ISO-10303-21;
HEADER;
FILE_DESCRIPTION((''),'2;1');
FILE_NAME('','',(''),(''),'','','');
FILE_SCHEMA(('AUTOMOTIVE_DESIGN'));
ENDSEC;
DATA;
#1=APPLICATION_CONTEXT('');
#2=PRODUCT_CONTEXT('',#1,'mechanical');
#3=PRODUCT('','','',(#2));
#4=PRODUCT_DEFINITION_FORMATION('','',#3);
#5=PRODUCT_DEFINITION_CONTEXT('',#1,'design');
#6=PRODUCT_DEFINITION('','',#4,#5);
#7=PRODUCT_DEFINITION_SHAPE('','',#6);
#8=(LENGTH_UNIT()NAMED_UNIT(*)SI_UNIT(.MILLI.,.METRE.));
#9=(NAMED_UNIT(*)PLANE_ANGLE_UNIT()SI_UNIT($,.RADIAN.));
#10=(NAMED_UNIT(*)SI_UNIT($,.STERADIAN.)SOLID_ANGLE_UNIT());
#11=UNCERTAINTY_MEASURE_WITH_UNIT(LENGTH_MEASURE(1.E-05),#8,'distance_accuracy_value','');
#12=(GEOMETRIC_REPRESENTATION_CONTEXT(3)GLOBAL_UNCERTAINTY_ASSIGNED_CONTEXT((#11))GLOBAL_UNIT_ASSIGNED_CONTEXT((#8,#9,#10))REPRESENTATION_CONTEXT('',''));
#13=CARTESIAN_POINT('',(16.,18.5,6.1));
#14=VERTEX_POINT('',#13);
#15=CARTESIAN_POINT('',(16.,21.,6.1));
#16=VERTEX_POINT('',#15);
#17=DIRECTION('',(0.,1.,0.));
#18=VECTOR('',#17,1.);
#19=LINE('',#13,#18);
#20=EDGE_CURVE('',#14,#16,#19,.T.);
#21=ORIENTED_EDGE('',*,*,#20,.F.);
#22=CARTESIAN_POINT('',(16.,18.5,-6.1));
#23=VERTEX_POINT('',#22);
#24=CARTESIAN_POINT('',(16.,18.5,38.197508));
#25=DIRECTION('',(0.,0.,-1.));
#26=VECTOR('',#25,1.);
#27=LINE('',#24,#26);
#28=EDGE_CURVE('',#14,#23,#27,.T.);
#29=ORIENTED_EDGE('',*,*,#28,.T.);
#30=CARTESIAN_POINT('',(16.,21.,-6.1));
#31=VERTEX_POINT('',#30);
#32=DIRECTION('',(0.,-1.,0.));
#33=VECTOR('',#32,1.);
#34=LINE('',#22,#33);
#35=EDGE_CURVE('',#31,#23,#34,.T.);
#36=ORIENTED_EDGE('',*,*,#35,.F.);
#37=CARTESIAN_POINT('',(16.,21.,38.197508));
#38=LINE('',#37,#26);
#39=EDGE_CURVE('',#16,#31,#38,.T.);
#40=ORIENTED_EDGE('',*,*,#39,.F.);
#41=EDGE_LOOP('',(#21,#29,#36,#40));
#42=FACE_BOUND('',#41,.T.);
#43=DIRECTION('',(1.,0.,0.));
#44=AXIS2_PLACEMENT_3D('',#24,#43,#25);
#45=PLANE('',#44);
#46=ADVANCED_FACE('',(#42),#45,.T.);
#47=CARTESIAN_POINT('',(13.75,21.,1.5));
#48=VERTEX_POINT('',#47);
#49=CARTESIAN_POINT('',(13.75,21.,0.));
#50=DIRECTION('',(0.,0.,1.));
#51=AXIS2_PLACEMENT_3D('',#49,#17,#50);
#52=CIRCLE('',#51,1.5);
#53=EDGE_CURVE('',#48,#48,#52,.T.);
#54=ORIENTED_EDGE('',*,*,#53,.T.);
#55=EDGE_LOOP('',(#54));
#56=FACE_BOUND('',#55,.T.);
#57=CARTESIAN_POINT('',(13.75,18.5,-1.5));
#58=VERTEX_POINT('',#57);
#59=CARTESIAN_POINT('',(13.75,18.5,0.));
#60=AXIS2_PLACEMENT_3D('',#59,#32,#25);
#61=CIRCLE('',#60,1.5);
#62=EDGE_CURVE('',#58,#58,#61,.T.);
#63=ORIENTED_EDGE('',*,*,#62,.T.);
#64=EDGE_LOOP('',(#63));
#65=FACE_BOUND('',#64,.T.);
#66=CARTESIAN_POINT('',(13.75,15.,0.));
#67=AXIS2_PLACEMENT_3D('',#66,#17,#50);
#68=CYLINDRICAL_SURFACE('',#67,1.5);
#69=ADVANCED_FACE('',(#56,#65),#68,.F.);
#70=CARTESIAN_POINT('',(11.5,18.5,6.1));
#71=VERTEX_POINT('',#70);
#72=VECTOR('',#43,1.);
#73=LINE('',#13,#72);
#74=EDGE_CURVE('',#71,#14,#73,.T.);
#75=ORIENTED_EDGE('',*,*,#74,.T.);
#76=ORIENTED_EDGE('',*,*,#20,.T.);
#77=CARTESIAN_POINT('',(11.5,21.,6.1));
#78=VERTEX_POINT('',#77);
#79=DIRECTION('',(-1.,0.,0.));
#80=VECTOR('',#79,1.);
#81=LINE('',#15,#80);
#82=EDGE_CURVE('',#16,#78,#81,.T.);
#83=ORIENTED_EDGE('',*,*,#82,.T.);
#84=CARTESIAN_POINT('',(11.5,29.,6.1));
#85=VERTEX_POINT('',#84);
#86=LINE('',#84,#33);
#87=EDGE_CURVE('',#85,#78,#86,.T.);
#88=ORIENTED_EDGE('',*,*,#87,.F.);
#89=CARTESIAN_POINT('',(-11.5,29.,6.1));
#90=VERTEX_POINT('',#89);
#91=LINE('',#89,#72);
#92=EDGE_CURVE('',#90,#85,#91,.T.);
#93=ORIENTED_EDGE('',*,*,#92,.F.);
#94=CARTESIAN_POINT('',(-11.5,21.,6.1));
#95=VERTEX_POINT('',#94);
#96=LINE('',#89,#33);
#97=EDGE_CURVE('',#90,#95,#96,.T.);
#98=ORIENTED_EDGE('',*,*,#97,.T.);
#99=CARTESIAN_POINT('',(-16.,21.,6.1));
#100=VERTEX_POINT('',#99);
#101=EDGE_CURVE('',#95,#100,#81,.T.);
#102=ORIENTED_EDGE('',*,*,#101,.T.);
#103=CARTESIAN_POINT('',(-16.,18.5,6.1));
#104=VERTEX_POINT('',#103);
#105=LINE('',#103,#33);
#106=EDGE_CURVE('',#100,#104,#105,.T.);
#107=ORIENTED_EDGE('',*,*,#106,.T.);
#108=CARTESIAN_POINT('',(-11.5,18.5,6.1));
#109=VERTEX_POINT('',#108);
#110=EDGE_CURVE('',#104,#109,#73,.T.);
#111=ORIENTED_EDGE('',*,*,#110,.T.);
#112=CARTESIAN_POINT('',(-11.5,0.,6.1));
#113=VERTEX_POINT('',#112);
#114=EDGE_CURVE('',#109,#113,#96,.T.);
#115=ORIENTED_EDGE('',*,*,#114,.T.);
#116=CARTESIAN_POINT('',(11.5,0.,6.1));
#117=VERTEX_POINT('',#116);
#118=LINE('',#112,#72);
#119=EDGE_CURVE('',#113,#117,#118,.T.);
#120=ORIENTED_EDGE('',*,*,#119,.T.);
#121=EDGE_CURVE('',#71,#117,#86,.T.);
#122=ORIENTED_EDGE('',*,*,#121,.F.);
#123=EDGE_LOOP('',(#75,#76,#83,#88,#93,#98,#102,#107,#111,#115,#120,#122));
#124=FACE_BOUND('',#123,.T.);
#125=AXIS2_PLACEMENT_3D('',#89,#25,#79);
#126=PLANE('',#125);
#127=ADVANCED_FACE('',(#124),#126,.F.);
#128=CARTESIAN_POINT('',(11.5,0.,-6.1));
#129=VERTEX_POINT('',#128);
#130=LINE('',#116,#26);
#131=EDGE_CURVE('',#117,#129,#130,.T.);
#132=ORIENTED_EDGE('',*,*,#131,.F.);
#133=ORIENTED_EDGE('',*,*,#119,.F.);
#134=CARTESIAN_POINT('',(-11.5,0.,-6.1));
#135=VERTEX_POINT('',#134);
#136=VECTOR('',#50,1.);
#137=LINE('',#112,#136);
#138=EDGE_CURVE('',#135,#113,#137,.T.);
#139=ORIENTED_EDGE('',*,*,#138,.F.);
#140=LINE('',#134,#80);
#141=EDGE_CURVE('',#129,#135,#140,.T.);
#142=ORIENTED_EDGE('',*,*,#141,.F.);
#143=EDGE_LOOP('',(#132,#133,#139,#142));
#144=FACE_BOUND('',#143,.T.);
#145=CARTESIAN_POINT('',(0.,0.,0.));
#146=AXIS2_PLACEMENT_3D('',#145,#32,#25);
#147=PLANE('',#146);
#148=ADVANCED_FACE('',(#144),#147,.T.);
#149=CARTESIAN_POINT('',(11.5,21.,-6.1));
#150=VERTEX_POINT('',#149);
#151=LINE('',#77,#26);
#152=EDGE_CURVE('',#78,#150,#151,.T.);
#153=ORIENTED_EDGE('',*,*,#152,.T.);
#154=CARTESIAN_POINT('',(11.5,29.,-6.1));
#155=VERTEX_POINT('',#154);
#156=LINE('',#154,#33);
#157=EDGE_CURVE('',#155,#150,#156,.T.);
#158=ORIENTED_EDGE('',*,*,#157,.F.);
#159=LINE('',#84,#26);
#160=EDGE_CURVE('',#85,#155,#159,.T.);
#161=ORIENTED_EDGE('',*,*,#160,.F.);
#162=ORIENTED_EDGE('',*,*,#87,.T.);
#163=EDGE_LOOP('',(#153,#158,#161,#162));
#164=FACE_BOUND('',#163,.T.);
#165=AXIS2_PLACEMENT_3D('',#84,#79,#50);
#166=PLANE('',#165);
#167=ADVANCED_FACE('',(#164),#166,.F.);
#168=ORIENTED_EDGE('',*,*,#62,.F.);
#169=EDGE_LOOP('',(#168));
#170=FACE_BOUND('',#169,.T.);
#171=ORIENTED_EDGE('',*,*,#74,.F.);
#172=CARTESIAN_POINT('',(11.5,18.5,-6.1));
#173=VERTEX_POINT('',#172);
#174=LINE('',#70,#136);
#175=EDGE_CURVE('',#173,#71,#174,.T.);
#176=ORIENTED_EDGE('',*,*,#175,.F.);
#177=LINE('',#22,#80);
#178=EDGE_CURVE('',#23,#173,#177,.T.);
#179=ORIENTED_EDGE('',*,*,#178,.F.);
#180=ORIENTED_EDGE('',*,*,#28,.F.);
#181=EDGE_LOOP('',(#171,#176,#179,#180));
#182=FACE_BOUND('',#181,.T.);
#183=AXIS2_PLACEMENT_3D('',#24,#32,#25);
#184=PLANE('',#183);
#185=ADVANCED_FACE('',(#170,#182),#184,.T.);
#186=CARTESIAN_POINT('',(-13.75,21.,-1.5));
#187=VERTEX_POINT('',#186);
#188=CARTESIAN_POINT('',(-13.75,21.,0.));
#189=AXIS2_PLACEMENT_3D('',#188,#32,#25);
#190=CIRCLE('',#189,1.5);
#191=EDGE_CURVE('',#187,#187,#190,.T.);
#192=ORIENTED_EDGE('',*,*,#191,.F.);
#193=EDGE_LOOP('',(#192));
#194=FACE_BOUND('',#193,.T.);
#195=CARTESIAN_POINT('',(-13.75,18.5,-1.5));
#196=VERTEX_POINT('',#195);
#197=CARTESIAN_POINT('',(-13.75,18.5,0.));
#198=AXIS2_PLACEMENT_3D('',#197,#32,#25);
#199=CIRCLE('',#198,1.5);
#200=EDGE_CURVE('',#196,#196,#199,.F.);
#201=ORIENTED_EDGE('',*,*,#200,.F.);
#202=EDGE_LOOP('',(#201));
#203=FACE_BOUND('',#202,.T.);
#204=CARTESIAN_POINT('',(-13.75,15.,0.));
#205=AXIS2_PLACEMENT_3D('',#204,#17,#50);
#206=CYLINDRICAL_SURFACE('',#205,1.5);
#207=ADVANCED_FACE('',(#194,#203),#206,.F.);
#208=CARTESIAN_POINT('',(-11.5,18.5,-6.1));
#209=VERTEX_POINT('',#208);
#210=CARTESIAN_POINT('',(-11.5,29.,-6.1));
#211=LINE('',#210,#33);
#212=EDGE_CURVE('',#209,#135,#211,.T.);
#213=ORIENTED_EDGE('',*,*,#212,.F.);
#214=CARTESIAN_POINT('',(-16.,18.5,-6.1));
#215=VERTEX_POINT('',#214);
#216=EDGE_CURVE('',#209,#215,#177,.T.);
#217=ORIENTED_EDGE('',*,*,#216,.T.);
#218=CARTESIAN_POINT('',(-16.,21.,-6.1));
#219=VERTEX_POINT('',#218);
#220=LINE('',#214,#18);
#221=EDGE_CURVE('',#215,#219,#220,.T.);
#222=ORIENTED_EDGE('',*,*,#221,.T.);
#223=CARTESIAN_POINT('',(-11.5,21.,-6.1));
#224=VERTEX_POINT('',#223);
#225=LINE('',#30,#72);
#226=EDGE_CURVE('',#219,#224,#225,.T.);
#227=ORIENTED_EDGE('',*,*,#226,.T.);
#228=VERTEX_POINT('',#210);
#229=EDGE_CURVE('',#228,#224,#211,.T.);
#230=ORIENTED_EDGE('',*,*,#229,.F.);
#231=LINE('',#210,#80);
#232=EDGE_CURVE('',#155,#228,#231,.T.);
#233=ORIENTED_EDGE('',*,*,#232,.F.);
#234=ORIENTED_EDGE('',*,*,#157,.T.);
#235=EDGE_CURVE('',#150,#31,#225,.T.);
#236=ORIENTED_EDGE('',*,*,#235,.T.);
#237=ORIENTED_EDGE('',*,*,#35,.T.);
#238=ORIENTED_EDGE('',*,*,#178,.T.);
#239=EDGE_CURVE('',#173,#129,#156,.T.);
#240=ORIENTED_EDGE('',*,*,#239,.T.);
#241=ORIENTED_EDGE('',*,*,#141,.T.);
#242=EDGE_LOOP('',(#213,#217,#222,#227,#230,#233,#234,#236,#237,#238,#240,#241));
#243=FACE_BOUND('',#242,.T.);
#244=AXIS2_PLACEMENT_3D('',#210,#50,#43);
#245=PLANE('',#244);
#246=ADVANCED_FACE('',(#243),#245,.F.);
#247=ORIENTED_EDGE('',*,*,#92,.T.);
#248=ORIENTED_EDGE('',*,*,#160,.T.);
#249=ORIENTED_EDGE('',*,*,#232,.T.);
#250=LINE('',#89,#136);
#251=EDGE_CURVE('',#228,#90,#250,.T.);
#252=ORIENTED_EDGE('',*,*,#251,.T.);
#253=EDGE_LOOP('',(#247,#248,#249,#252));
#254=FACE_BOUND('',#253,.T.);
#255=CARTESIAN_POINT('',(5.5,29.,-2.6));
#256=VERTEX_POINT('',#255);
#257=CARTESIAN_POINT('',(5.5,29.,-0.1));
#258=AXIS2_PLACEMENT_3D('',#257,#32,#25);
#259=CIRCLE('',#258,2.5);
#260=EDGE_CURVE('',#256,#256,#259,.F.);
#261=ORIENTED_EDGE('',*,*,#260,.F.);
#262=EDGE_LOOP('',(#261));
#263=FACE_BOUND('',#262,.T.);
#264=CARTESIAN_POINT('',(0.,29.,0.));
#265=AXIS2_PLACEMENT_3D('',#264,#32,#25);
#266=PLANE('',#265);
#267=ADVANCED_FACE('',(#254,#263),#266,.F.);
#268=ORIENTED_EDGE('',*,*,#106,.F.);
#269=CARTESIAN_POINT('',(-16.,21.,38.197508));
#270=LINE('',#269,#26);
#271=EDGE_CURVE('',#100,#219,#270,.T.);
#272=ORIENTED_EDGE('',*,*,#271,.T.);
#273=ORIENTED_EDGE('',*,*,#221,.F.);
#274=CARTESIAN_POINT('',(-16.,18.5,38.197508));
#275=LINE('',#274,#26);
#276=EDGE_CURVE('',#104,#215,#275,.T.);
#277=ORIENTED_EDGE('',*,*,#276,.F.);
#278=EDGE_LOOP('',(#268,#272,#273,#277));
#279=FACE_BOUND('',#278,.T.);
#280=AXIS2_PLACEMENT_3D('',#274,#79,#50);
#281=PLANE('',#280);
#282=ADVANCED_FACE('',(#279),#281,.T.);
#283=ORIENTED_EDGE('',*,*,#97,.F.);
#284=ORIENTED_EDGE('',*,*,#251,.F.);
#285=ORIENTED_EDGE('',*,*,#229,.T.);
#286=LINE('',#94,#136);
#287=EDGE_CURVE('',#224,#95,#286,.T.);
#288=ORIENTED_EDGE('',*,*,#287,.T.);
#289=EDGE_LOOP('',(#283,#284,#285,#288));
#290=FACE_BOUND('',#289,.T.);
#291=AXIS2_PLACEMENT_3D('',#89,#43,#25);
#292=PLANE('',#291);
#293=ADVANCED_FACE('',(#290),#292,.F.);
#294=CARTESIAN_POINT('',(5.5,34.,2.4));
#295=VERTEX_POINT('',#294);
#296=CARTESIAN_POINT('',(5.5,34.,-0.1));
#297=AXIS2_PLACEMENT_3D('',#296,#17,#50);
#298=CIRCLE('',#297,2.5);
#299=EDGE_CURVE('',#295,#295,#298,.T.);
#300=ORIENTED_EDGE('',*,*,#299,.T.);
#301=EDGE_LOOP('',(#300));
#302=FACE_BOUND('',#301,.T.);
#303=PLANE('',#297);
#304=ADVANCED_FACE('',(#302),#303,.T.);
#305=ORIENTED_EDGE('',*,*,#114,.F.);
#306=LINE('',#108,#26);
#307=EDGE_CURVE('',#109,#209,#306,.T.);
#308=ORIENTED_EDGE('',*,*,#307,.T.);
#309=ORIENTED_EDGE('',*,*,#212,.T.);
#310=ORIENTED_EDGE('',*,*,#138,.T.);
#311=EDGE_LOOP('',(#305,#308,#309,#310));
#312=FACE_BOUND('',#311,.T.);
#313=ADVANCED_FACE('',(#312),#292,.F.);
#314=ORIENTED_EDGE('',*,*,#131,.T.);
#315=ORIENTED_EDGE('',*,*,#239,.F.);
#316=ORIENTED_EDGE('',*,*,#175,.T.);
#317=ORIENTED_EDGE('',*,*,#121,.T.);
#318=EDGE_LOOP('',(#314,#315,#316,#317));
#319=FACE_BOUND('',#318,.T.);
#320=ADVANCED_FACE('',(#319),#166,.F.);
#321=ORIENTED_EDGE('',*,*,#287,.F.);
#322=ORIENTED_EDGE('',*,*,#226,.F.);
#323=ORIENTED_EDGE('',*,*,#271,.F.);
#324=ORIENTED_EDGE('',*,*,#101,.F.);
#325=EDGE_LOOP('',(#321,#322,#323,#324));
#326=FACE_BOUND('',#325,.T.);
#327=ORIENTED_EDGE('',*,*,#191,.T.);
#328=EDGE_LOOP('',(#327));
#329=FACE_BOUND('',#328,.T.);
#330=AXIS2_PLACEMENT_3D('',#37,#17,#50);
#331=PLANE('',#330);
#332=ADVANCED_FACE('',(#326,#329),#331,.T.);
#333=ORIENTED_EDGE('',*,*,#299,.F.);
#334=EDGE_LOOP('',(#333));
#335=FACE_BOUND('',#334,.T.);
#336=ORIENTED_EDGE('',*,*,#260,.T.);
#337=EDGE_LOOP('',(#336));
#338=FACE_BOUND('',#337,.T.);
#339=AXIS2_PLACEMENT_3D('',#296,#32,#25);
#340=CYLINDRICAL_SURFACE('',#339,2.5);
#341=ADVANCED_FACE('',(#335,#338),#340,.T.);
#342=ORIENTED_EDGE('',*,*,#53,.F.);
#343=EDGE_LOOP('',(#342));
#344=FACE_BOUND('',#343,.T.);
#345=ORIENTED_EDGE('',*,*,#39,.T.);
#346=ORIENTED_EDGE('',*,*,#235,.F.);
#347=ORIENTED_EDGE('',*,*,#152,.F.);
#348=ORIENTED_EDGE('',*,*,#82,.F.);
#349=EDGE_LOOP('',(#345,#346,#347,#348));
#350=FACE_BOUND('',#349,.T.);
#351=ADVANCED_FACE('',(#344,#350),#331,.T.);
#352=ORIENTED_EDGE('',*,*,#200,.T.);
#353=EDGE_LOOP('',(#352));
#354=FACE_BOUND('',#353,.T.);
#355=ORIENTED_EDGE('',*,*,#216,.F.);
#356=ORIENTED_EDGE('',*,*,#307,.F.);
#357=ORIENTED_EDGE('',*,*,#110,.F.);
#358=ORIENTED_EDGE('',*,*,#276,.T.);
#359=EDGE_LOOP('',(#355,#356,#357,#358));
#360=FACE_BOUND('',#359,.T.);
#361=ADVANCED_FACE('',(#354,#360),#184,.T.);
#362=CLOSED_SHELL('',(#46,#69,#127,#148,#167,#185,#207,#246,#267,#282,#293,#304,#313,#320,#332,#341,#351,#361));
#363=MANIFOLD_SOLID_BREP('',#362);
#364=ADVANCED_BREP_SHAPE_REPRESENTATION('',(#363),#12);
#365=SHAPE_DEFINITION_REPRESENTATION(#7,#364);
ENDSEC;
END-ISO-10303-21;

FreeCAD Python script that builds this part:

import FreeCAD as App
import Part
import Sketcher

doc = App.newDocument("Part")
body = doc.addObject("PartDesign::Body", "Body")

# Sketch on XZ plane
sketch1 = body.newObject("Sketcher::SketchObject", "Sketch")
sketch1.AttachmentSupport = (doc.getObject("XZ_Plane"), [""])
sketch1.MapMode = "FlatFace"
sketch1.addGeometry(Part.LineSegment(App.Vector(-12, -6, 0), App.Vector(-12, 6, 0)), False)
sketch1.addGeometry(Part.LineSegment(App.Vector(-12, 6, 0), App.Vector(12, 6, 0)), False)
sketch1.addGeometry(Part.LineSegment(App.Vector(12, 6, 0), App.Vector(12, -6, 0)), False)
sketch1.addGeometry(Part.LineSegment(App.Vector(12, -6, 0), App.Vector(-12, -6, 0)), False)
sketch1.addConstraint(Sketcher.Constraint("Coincident", 0, 2, 1, 1))
sketch1.addConstraint(Sketcher.Constraint("Coincident", 1, 2, 2, 1))
sketch1.addConstraint(Sketcher.Constraint("Coincident", 2, 2, 3, 1))
sketch1.addConstraint(Sketcher.Constraint("Coincident", 3, 2, 0, 1))
sketch1.addConstraint(Sketcher.Constraint("Vertical", 0))
sketch1.addConstraint(Sketcher.Constraint("Horizontal", 1))
sketch1.addConstraint(Sketcher.Constraint("Vertical", 2))
sketch1.addConstraint(Sketcher.Constraint("Horizontal", 3))
sketch1.addConstraint(Sketcher.Constraint("Symmetric", 0, 2, 2, 2, -1, 1))
sketch1.addConstraint(Sketcher.Constraint("DistanceX", 1, 1, 1, 2, 23.0))
sketch1.addConstraint(Sketcher.Constraint("DistanceY", 0, 1, 0, 2, 12.2))
pad1 = body.newObject("PartDesign::Pad", "Pad")
pad1.Profile = sketch1
pad1.Length = 29
pad1.Reversed = True

# Sketch on XY plane
sketch2 = body.newObject("Sketcher::SketchObject", "Sketch001")
sketch2.AttachmentSupport = (doc.getObject("XY_Plane"), [""])
sketch2.MapMode = "FlatFace"
sketch2.AttachmentOffset = App.Placement(App.Vector(0, 0, -6.1), App.Rotation())
sketch2.addGeometry(Part.LineSegment(App.Vector(16, 21, 0), App.Vector(16, 18.5, 0)), False)
sketch2.addGeometry(Part.LineSegment(App.Vector(16, 18.5, 0), App.Vector(-16, 18.5, 0)), False)
sketch2.addGeometry(Part.LineSegment(App.Vector(-16, 18.5, 0), App.Vector(-16, 21, 0)), False)
sketch2.addGeometry(Part.LineSegment(App.Vector(-16, 21, 0), App.Vector(16, 21, 0)), False)
sketch2.addConstraint(Sketcher.Constraint("Coincident", 0, 2, 1, 1))
sketch2.addConstraint(Sketcher.Constraint("Coincident", 1, 2, 2, 1))
sketch2.addConstraint(Sketcher.Constraint("Coincident", 2, 2, 3, 1))
sketch2.addConstraint(Sketcher.Constraint("Coincident", 3, 2, 0, 1))
sketch2.addConstraint(Sketcher.Constraint("Vertical", 0))
sketch2.addConstraint(Sketcher.Constraint("Horizontal", 1))
sketch2.addConstraint(Sketcher.Constraint("Vertical", 2))
sketch2.addConstraint(Sketcher.Constraint("Horizontal", 3))
sketch2.addConstraint(Sketcher.Constraint("DistanceX", 1, 2, 1, 1, 32.0))
sketch2.addConstraint(Sketcher.Constraint("DistanceY", 0, 2, 0, 1, 2.5))
sketch2.addConstraint(Sketcher.Constraint("DistanceX", -1, 1, 0, 2, 16.0))
sketch2.addConstraint(Sketcher.Constraint("DistanceY", -1, 1, 2, 2, 21.0))
pad2 = body.newObject("PartDesign::Pad", "Pad001")
pad2.Profile = sketch2
pad2.Length = 12.2

# Sketch on XZ plane
sketch3 = body.newObject("Sketcher::SketchObject", "Sketch002")
sketch3.AttachmentSupport = (doc.getObject("XZ_Plane"), [""])
sketch3.MapMode = "FlatFace"
sketch3.AttachmentOffset = App.Placement(App.Vector(0, 0, -21), App.Rotation())
sketch3.addGeometry(Part.Circle(App.Vector(13.8, 0, 0), App.Vector(0, 0, 1), 1.5), False)
sketch3.addGeometry(Part.Circle(App.Vector(-13.8, 0, 0), App.Vector(0, 0, 1), 1.5), False)
sketch3.addConstraint(Sketcher.Constraint("Equal", 0, 1))
sketch3.addConstraint(Sketcher.Constraint("Symmetric", 0, 3, 1, 3, -1, 1))
sketch3.addConstraint(Sketcher.Constraint("PointOnObject", 0, 3, -1))
sketch3.addConstraint(Sketcher.Constraint("Diameter", 0, 3.0))
sketch3.addConstraint(Sketcher.Constraint("DistanceX", 1, 3, 0, 3, 27.5))
pocket1 = body.newObject("PartDesign::Pocket", "Pocket")
pocket1.Profile = sketch3
pocket1.Length = 6
pocket1.Reversed = True

# Sketch on XZ plane
sketch4 = body.newObject("Sketcher::SketchObject", "Sketch003")
sketch4.AttachmentSupport = (doc.getObject("XZ_Plane"), [""])
sketch4.MapMode = "FlatFace"
sketch4.AttachmentOffset = App.Placement(App.Vector(0, 0, -29), App.Rotation())
sketch4.addGeometry(Part.Circle(App.Vector(5.5, -0.1, 0), App.Vector(0, 0, 1), 2.5), False)
sketch4.addConstraint(Sketcher.Constraint("Diameter", 0, 5.0))
sketch4.addConstraint(Sketcher.Constraint("DistanceX", -1, 1, 0, 3, 5.5))
sketch4.addConstraint(Sketcher.Constraint("DistanceY", 0, 3, -1, 1, 0.1))
pad3 = body.newObject("PartDesign::Pad", "Pad002")
pad3.Profile = sketch4
pad3.Length = 5
pad3.Reversed = True

doc.recompute()
